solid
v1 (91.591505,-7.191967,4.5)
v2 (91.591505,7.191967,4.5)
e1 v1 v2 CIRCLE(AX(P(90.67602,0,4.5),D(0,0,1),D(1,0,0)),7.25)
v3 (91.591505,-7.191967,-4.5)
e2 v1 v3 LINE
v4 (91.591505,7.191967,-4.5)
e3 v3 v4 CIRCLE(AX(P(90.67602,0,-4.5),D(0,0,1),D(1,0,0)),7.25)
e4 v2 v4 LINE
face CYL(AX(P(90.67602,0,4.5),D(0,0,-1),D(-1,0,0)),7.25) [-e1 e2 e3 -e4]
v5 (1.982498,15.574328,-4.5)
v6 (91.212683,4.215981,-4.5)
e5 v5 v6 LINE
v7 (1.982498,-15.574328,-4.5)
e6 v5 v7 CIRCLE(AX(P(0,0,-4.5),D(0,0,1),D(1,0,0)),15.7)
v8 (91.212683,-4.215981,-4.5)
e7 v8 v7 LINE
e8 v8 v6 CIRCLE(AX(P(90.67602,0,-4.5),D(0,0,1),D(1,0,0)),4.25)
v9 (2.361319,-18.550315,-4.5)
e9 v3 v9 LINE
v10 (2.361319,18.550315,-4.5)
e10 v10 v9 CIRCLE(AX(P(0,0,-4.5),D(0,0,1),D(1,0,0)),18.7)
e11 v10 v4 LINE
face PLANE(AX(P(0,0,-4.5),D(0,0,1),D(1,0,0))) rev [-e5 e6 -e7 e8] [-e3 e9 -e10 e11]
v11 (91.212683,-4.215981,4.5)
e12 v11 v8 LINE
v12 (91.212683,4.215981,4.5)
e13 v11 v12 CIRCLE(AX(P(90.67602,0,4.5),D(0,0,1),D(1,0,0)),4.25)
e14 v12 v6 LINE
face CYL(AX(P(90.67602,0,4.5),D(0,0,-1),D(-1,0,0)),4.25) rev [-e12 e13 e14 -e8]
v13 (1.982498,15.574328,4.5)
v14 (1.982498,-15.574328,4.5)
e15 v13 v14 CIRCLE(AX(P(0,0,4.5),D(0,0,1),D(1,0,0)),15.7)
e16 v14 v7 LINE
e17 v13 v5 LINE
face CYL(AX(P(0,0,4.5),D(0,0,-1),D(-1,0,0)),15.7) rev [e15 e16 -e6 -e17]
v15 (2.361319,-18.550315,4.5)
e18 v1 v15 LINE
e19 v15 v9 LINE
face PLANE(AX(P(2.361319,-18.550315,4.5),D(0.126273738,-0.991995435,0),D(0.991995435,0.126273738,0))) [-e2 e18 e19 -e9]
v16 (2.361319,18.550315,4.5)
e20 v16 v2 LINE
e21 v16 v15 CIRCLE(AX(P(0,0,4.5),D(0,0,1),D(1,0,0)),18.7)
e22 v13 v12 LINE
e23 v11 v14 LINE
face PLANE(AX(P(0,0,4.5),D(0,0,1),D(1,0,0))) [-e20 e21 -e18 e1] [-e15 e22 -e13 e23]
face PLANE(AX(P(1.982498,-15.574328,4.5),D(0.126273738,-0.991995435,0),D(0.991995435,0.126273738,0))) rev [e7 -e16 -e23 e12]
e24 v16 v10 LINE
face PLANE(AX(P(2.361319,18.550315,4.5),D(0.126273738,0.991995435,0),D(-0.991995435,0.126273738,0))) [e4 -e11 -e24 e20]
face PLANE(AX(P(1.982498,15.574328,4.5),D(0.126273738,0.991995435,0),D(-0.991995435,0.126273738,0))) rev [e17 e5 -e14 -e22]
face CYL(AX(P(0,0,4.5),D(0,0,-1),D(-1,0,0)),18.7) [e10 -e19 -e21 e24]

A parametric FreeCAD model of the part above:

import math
import FreeCAD as App
import Part
import Sketcher
from FreeCAD import Vector
Q = App.Units.Quantity

doc = App.newDocument("Part")
params = doc.addObject("Spreadsheet::Sheet", "Params")
for row, (alias, value) in enumerate([
    ("sketch1_radius", "18.7 mm"),
    ("sketch1_radius2", "15.7 mm"),
    ("sketch1_radius3", "7.25 mm"),
    ("pad1_length", "9 mm"),
], start=1):
    params.set(f"A{row}", alias)
    params.set(f"B{row}", "=" + value)
    params.setAlias(f"B{row}", alias)

body = doc.addObject("PartDesign::Body", "Body")

# Sketch on XY plane
sketch1 = body.newObject("Sketcher::SketchObject", "Sketch")
sketch1.AttachmentSupport = (doc.getObject("XY_Plane"), [""])
sketch1.MapMode = "FlatFace"
sketch1.addGeometry(Part.ArcOfCircle(Part.Circle(Vector(90.7, 0, 0), Vector(0, 0, 1), 7.2), math.radians(-83), math.radians(83)), False)
sketch1.addGeometry(Part.LineSegment(Vector(91.6, 7.2, 0), Vector(2.4, 18.6, 0)), False)
sketch1.addGeometry(Part.ArcOfCircle(Part.Circle(Vector(0, 0, 0), Vector(0, 0, 1), 18.7), math.radians(83), math.radians(277)), False)
sketch1.addGeometry(Part.LineSegment(Vector(2.4, -18.6, 0), Vector(91.6, -7.2, 0)), False)
sketch1.addGeometry(Part.LineSegment(Vector(91.2, -4.2, 0), Vector(2, -15.6, 0)), False)
sketch1.addGeometry(Part.ArcOfCircle(Part.Circle(Vector(0, 0, 0), Vector(0, 0, 1), 15.7), math.radians(83), math.radians(277)), False)
sketch1.addGeometry(Part.LineSegment(Vector(2, 15.6, 0), Vector(91.2, 4.2, 0)), False)
sketch1.addGeometry(Part.ArcOfCircle(Part.Circle(Vector(90.7, 0, 0), Vector(0, 0, 1), 4.2), math.radians(-83), math.radians(83)), False)
sketch1.addConstraint(Sketcher.Constraint("Tangent", 0, 2, 1, 1))
sketch1.addConstraint(Sketcher.Constraint("Tangent", 1, 2, 2, 1))
sketch1.addConstraint(Sketcher.Constraint("Tangent", 2, 2, 3, 1))
sketch1.addConstraint(Sketcher.Constraint("Tangent", 3, 2, 0, 1))
sketch1.addConstraint(Sketcher.Constraint("Tangent", 4, 2, 5, 2))
sketch1.addConstraint(Sketcher.Constraint("Tangent", 5, 1, 6, 1))
sketch1.addConstraint(Sketcher.Constraint("Tangent", 6, 2, 7, 2))
sketch1.addConstraint(Sketcher.Constraint("Tangent", 7, 1, 4, 1))
sketch1.addConstraint(Sketcher.Constraint("Coincident", 2, 3, -1, 1))
sketch1.addConstraint(Sketcher.Constraint("Coincident", 5, 3, -1, 1))
sketch1.addConstraint(Sketcher.Constraint("Coincident", 7, 3, 0, 3))
sketch1.addConstraint(Sketcher.Constraint("PointOnObject", 0, 3, -1))
sketch1.addConstraint(Sketcher.Constraint("Parallel", 3, 4))
sketch1.addConstraint(Sketcher.Constraint("Radius", 2, Q("18.7 mm")))
sketch1.addConstraint(Sketcher.Constraint("Radius", 5, Q("15.7 mm")))
sketch1.addConstraint(Sketcher.Constraint("Radius", 0, Q("7.25 mm")))
sketch1.addConstraint(Sketcher.Constraint("DistanceX", 1, 2, 0, 3, Q("88.314701 mm")))
sketch1.setExpression("Constraints[13]", "Params.sketch1_radius")
sketch1.setExpression("Constraints[14]", "Params.sketch1_radius2")
sketch1.setExpression("Constraints[15]", "Params.sketch1_radius3")
pad1 = body.newObject("PartDesign::Pad", "Pad")
pad1.Profile = sketch1
pad1.setExpression("Length", "Params.pad1_length")
pad1.Midplane = True

doc.recompute()
